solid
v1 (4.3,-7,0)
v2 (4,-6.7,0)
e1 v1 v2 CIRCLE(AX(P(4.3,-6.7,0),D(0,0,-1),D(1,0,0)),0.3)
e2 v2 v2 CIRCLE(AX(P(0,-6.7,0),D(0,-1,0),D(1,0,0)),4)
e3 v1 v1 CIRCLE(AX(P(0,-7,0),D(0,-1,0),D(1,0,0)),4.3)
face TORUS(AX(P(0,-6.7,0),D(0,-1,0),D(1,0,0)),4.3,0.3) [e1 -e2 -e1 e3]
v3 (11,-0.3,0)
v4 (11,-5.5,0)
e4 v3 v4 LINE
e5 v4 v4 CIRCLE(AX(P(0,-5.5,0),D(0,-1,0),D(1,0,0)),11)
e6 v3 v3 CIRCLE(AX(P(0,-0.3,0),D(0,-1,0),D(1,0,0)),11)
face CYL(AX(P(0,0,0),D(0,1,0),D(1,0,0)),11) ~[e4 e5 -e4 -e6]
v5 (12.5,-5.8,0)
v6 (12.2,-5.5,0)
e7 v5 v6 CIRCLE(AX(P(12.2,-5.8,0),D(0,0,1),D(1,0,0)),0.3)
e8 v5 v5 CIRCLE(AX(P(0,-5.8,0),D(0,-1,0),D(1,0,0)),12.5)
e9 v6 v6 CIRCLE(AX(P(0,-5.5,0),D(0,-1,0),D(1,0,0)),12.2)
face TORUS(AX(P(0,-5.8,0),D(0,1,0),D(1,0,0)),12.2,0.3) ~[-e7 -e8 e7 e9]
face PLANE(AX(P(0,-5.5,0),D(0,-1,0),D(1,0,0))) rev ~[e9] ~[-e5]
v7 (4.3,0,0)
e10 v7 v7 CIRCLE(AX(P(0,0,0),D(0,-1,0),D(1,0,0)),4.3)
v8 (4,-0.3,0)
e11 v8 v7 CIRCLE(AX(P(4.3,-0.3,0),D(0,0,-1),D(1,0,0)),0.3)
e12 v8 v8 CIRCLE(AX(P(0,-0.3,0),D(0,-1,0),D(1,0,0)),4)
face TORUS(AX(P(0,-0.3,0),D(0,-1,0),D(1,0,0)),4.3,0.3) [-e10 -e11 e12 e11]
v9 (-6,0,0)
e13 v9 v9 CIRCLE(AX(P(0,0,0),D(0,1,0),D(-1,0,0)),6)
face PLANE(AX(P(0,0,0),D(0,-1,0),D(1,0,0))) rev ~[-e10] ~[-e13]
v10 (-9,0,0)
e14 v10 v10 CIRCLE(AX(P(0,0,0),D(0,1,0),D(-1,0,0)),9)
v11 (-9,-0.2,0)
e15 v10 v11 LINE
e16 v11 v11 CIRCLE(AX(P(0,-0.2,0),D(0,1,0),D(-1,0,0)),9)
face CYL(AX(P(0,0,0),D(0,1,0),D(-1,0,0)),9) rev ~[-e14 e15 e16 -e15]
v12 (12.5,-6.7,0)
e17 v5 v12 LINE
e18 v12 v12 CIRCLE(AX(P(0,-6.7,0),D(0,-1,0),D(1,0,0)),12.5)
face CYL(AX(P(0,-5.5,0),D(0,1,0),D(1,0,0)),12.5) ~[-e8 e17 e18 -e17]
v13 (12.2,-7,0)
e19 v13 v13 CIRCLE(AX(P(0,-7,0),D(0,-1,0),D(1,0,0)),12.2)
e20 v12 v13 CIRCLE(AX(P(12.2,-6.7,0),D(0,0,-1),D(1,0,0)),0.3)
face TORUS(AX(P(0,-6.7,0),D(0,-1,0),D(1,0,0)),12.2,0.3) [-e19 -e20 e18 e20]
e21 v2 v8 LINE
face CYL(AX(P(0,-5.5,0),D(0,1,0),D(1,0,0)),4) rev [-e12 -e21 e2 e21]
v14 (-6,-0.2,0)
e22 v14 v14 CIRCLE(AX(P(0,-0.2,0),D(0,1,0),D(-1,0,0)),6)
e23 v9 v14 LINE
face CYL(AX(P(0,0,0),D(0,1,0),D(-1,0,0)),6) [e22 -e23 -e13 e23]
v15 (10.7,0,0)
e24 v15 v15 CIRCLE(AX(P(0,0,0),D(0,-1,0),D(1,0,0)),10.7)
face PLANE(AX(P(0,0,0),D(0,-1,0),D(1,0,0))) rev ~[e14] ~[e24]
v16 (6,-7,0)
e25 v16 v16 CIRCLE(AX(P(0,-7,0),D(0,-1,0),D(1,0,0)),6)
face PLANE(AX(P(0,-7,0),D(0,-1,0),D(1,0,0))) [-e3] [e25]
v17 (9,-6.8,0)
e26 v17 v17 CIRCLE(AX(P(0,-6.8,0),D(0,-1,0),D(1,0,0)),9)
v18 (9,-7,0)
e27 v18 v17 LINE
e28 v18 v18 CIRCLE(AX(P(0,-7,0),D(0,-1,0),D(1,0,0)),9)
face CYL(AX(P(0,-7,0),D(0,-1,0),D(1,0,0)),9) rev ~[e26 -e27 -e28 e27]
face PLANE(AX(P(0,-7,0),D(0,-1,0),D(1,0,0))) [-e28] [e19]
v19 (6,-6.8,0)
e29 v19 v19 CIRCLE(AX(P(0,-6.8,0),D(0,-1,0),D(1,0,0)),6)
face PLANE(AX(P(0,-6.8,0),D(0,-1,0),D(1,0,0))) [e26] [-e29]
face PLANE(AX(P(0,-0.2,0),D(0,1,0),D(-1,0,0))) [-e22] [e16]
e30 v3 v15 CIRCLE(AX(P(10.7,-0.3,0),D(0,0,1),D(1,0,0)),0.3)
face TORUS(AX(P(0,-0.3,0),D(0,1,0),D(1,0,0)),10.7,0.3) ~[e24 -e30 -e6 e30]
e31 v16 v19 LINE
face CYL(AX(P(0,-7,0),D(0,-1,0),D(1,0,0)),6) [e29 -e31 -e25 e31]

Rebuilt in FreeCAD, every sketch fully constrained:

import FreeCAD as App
import Part
import Sketcher

V = App.Vector


def edges_at(feature, points):
    """Names of the edges that pass closest to the given points."""
    edges = feature.Shape.Edges
    near = lambda p: min(range(len(edges)), key=lambda i: edges[i].distToShape(Part.Vertex(*p))[0])
    return sorted({f"Edge{near(p) + 1}" for p in points})

doc = App.newDocument("Part")
body = doc.addObject("PartDesign::Body", "Body")

sketch1 = body.newObject("Sketcher::SketchObject", "Sketch")
sketch1.AttachmentSupport = (doc.getObject("XZ_Plane"), [""])
sketch1.MapMode = "FlatFace"
sketch1.addGeometry([
    Part.Circle(V(0, 0, 0), V(0, 0, 1), 11),
    Part.Circle(V(0, 0, 0), V(0, 0, 1), 4),
], False)
sketch1.addConstraint([
    Sketcher.Constraint("Coincident", 0, 3, -1, 1),
    Sketcher.Constraint("Coincident", 1, 3, -1, 1),
    Sketcher.Constraint("Diameter", 0, 22.0),
    Sketcher.Constraint("Diameter", 1, 8.0),
])
pad1 = body.newObject("PartDesign::Pad", "Pad")
pad1.Profile = sketch1
pad1.Length = 5.5

sketch2 = body.newObject("Sketcher::SketchObject", "Sketch001")
sketch2.AttachmentSupport = (doc.getObject("XZ_Plane"), [""])
sketch2.MapMode = "FlatFace"
sketch2.AttachmentOffset = App.Placement(V(0, 0, 5.5), App.Rotation())
sketch2.addGeometry([
    Part.Circle(V(0, 0, 0), V(0, 0, 1), 12.5),
    Part.Circle(V(0, 0, 0), V(0, 0, 1), 4),
], False)
sketch2.addConstraint([
    Sketcher.Constraint("Coincident", 0, 3, -1, 1),
    Sketcher.Constraint("Coincident", 1, 3, -1, 1),
    Sketcher.Constraint("Diameter", 0, 25.0),
    Sketcher.Constraint("Diameter", 1, 8.0),
])
pad2 = body.newObject("PartDesign::Pad", "Pad001")
pad2.Profile = sketch2
pad2.Length = 1.5

sketch3 = body.newObject("Sketcher::SketchObject", "Sketch002")
sketch3.AttachmentSupport = (doc.getObject("XZ_Plane"), [""])
sketch3.MapMode = "FlatFace"
sketch3.addGeometry([
    Part.Circle(V(0, 0, 0), V(0, 0, 1), 9),
    Part.Circle(V(0, 0, 0), V(0, 0, 1), 6),
], False)
sketch3.addConstraint([
    Sketcher.Constraint("Coincident", 0, 3, -1, 1),
    Sketcher.Constraint("Coincident", 1, 3, -1, 1),
    Sketcher.Constraint("Diameter", 0, 18.0),
    Sketcher.Constraint("Diameter", 1, 12.0),
])
pocket1 = body.newObject("PartDesign::Pocket", "Pocket")
pocket1.Profile = sketch3
pocket1.Length = 0.2
pocket1.Reversed = True

sketch4 = body.newObject("Sketcher::SketchObject", "Sketch003")
sketch4.AttachmentSupport = (doc.getObject("XZ_Plane"), [""])
sketch4.MapMode = "FlatFace"
sketch4.AttachmentOffset = App.Placement(V(0, 0, 7), App.Rotation())
sketch4.addGeometry([
    Part.Circle(V(0, 0, 0), V(0, 0, 1), 9),
    Part.Circle(V(0, 0, 0), V(0, 0, 1), 6),
], False)
sketch4.addConstraint([
    Sketcher.Constraint("Coincident", 0, 3, -1, 1),
    Sketcher.Constraint("Coincident", 1, 3, -1, 1),
    Sketcher.Constraint("Diameter", 0, 18.0),
    Sketcher.Constraint("Diameter", 1, 12.0),
])
pocket2 = body.newObject("PartDesign::Pocket", "Pocket001")
pocket2.Profile = sketch4
pocket2.Length = 0.2
doc.recompute()

fillet = body.newObject("PartDesign::Fillet", "Fillet")
fillet.Base = (pocket2, edges_at(pocket2, [
    (-12.5, -7, 0),
    (-12.5, -5.5, 0),
    (-11, 0, 0),
    (-4, -7, 0),
    (-4, 0, 0),
]))
fillet.Radius = 0.3

doc.recompute()
